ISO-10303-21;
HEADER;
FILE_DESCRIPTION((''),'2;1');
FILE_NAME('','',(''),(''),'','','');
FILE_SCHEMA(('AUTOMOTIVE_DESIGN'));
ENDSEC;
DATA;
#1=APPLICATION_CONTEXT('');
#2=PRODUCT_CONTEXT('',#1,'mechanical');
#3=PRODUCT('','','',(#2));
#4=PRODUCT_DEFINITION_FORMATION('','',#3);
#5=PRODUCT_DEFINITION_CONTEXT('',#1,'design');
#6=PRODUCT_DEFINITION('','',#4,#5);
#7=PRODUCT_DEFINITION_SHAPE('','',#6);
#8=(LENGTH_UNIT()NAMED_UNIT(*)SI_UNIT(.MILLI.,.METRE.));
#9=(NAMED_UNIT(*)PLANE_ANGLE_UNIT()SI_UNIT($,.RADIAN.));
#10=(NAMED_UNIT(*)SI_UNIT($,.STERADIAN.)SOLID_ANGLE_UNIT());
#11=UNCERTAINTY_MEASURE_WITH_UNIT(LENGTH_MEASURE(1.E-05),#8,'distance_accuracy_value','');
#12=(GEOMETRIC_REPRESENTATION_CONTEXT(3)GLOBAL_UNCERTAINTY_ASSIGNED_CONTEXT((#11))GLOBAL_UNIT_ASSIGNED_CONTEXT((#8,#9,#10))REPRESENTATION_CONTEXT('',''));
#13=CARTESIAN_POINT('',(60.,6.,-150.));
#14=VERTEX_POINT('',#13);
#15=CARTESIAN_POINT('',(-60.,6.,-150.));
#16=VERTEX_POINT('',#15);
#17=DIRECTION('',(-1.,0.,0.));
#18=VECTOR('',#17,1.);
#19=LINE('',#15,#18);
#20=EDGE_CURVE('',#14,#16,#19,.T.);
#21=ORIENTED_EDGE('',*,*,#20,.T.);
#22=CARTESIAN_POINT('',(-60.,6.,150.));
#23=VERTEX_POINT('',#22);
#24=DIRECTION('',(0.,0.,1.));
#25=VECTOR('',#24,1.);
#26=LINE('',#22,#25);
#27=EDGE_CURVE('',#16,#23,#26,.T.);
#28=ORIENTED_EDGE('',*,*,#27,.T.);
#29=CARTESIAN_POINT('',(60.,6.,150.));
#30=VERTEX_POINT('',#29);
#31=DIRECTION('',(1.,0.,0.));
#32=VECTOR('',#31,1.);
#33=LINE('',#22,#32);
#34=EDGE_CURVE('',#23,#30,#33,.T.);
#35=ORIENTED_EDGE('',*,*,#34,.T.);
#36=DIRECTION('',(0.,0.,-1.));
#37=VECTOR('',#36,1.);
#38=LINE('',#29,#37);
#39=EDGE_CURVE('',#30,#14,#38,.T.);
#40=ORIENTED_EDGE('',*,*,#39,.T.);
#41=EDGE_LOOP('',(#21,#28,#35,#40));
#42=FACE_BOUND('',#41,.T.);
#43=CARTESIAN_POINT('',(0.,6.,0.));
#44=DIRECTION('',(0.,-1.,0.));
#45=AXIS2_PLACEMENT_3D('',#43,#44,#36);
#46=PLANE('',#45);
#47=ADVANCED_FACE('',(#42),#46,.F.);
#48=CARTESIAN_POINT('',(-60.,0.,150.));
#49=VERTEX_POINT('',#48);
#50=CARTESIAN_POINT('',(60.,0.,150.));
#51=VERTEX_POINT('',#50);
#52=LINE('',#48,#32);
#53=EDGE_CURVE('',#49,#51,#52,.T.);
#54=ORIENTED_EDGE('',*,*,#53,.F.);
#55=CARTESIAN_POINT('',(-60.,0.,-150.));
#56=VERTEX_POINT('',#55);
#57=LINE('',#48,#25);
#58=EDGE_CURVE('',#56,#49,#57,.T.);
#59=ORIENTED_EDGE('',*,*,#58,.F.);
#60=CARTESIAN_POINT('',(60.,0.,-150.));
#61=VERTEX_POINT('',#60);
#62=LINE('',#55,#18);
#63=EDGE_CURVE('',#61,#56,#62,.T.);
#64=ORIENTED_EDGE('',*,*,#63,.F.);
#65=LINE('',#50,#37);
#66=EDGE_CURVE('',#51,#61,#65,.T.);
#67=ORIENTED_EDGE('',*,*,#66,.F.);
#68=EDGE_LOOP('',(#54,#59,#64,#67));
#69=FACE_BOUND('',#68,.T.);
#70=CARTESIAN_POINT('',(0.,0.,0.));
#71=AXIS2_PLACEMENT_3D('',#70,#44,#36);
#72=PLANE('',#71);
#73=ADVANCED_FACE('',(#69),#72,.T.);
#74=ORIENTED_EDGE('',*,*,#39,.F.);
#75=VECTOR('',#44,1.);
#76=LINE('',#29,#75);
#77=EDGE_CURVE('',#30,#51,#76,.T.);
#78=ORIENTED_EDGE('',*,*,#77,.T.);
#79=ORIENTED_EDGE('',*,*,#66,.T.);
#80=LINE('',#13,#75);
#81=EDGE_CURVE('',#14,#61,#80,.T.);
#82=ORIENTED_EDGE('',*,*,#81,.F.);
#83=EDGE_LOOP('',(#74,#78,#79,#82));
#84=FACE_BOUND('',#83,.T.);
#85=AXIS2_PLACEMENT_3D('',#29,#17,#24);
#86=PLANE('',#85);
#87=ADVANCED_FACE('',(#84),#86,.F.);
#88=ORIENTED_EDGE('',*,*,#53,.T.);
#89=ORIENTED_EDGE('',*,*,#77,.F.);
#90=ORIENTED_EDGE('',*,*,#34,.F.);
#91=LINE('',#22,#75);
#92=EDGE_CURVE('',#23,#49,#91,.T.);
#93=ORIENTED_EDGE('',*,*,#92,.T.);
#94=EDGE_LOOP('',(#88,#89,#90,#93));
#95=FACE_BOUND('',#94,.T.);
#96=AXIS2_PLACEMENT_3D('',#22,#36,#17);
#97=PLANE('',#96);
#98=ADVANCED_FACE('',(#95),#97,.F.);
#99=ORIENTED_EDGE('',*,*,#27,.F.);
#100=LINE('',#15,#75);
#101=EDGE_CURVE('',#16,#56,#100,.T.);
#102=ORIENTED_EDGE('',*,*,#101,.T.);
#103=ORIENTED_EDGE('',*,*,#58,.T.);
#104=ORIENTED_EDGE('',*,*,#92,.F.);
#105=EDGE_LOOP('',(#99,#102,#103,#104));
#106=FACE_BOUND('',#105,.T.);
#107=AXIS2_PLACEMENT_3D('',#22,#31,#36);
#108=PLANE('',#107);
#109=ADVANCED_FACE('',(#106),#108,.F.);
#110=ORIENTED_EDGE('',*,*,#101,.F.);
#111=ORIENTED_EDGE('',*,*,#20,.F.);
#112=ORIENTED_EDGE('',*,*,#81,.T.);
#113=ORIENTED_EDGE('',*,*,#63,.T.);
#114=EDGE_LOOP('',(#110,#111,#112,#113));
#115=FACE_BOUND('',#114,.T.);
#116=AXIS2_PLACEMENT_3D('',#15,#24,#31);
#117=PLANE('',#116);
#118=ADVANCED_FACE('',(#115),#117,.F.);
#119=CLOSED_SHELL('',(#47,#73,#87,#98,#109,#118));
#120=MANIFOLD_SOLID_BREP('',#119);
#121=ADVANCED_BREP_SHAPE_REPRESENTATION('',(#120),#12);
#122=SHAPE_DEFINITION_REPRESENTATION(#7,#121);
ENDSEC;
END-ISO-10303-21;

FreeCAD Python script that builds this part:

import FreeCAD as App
import Part
import Sketcher
from FreeCAD import Vector
Q = App.Units.Quantity


def add_polygon(sketch, points):
    """Adds a closed chain of lines whose ends are joined by coincident constraints."""
    first, n = sketch.GeometryCount, len(points)
    for a, b in zip(points, points[1:] + points[:1]):
        sketch.addGeometry(Part.LineSegment(App.Vector(*a, 0), App.Vector(*b, 0)), False)
    for i in range(n):
        sketch.addConstraint(Sketcher.Constraint("Coincident", first + i, 2, first + (i + 1) % n, 1))

doc = App.newDocument("Part")
body = doc.addObject("PartDesign::Body", "Body")

sketch1 = body.newObject("Sketcher::SketchObject", "Sketch")
sketch1.AttachmentSupport = (doc.getObject("XZ_Plane"), [""])
sketch1.MapMode = "FlatFace"
add_polygon(sketch1, [(-60, -150), (-60, 150), (60, 150), (60, -150)])
sketch1.addConstraint(Sketcher.Constraint("Vertical", 0))
sketch1.addConstraint(Sketcher.Constraint("Horizontal", 1))
sketch1.addConstraint(Sketcher.Constraint("Vertical", 2))
sketch1.addConstraint(Sketcher.Constraint("Horizontal", 3))
sketch1.addConstraint(Sketcher.Constraint("Symmetric", 0, 2, 2, 2, -1, 1))
sketch1.addConstraint(Sketcher.Constraint("DistanceX", 1, 1, 1, 2, Q("120 mm")))
sketch1.addConstraint(Sketcher.Constraint("DistanceY", 0, 1, 0, 2, Q("300 mm")))
pad1 = body.newObject("PartDesign::Pad", "Pad")
pad1.Profile = sketch1
pad1.Length = 6
pad1.Reversed = True

doc.recompute()
